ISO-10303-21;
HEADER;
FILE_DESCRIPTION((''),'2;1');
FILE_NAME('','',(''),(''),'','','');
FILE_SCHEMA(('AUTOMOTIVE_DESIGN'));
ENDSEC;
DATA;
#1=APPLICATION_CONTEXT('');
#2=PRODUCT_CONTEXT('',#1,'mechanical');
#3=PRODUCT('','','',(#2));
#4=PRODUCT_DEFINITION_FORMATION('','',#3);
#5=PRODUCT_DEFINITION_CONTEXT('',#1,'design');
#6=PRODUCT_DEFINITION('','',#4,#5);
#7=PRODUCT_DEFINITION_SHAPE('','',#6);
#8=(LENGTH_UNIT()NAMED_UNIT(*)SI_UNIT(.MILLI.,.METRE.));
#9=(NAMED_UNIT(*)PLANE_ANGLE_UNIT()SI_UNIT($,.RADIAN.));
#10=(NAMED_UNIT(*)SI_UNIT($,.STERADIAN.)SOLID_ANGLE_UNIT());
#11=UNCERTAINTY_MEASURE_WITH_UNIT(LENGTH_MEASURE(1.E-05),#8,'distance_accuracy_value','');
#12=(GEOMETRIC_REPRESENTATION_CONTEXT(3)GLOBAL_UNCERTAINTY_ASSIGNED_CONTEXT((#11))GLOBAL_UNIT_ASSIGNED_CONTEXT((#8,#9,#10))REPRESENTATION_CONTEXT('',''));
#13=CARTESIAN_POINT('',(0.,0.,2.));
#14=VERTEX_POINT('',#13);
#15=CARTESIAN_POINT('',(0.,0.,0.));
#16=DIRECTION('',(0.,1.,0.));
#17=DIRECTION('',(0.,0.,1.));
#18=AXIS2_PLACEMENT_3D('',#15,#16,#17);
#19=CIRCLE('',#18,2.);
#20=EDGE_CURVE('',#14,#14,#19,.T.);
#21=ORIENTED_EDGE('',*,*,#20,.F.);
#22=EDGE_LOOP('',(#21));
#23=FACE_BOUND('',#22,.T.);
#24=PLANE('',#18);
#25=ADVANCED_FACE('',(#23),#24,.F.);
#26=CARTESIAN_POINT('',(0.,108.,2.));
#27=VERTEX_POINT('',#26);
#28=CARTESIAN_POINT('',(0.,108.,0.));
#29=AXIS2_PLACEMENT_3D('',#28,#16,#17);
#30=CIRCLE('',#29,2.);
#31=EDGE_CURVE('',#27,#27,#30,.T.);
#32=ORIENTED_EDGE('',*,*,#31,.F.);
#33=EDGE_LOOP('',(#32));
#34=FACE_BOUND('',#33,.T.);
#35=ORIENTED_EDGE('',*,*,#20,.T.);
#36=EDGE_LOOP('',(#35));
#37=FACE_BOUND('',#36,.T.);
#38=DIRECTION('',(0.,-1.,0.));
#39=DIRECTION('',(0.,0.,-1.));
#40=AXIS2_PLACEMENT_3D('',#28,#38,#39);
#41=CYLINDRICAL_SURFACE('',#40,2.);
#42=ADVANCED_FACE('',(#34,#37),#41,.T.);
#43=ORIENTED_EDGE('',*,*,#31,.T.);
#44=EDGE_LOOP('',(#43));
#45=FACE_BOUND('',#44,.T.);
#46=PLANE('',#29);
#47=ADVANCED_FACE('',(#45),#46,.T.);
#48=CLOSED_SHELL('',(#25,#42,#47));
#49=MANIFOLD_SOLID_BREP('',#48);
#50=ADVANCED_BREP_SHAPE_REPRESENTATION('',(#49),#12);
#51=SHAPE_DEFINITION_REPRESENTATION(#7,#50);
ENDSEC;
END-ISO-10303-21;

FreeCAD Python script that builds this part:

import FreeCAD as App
import Part
import Sketcher

V = App.Vector
Q = App.Units.Quantity

doc = App.newDocument("Part")
body = doc.addObject("PartDesign::Body", "Body")

# Sketch on XZ plane
sketch1 = body.newObject("Sketcher::SketchObject", "Sketch")
sketch1.AttachmentSupport = (doc.getObject("XZ_Plane"), [""])
sketch1.MapMode = "FlatFace"
sketch1.addGeometry(Part.Circle(V(0, 0, 0), V(0, 0, 1), 2), False)
sketch1.addConstraint(Sketcher.Constraint("Coincident", 0, 3, -1, 1))
sketch1.addConstraint(Sketcher.Constraint("Diameter", 0, Q("4 mm")))
pad1 = body.newObject("PartDesign::Pad", "Pad")
pad1.Profile = sketch1
pad1.Length = 108
pad1.Reversed = True

doc.recompute()
